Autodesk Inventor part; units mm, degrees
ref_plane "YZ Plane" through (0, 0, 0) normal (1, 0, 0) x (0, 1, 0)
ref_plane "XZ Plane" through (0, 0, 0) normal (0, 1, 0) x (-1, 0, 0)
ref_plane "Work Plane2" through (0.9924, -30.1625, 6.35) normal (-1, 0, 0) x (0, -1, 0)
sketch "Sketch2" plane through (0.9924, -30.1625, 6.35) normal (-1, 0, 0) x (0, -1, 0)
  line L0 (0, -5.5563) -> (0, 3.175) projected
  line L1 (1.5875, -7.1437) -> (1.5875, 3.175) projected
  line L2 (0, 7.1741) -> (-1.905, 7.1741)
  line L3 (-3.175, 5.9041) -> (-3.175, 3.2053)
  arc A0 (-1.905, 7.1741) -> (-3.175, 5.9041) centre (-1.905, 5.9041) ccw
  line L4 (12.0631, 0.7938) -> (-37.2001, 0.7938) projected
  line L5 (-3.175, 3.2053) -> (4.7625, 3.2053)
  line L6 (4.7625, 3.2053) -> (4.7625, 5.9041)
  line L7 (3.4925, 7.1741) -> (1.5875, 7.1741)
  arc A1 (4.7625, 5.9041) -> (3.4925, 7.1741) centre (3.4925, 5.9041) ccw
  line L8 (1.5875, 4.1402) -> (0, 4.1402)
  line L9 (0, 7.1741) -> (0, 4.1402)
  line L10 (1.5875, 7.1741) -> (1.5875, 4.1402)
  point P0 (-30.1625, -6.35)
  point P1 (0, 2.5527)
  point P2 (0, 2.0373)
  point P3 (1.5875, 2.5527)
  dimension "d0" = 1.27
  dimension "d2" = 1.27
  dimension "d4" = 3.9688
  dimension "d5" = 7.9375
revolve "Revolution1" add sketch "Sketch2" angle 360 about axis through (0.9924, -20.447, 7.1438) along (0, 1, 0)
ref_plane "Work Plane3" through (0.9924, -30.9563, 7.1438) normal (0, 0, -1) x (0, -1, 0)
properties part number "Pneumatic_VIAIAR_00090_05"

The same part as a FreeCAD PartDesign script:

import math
import FreeCAD as App
import Part
import Sketcher

V = App.Vector
Q = App.Units.Quantity

doc = App.newDocument("Part")
body = doc.addObject("PartDesign::Body", "Body")

# Sketch on YZ plane
sketch1 = doc.addObject("Sketcher::SketchObject", "Sketch")
body.addObject(sketch1)
sketch1.AttachmentSupport = (doc.YZ_Plane, [""])
sketch1.MapMode = "FlatFace"
sketch1.AttachmentOffset = App.Placement(V(0, 0, 0.9924), App.Rotation())
sketch1.addGeometry([
    Part.LineSegment(V(-30.2, 10.5, 0), V(-30.2, 13.5, 0)),  # 0
    Part.LineSegment(V(-30.2, 13.5, 0), V(-28.3, 13.5, 0)),  # 1
    Part.ArcOfCircle(Part.Circle(V(-28.3, 12.3, 0), V(0, 0, 1), 1.3), math.radians(0), math.radians(90)),  # 2
    Part.LineSegment(V(-27, 12.3, 0), V(-27, 9.6, 0)),  # 3
    Part.LineSegment(V(-27, 9.6, 0), V(-34.9, 9.6, 0)),  # 4
    Part.LineSegment(V(-34.9, 9.6, 0), V(-34.9, 12.3, 0)),  # 5
    Part.ArcOfCircle(Part.Circle(V(-33.7, 12.3, 0), V(0, 0, 1), 1.3), math.radians(90), math.radians(180)),  # 6
    Part.LineSegment(V(-33.7, 13.5, 0), V(-31.8, 13.5, 0)),  # 7
    Part.LineSegment(V(-31.8, 13.5, 0), V(-31.8, 10.5, 0)),  # 8
    Part.LineSegment(V(-31.8, 10.5, 0), V(-30.2, 10.5, 0)),  # 9
], False)
sketch1.addGeometry(Part.LineSegment(V(-34.9, 7.1, 0), V(-27, 7.1, 0)), True)  # axis
sketch1.addConstraint([
    Sketcher.Constraint("Coincident", 0, 2, 1, 1),
    Sketcher.Constraint("Tangent", 1, 2, 2, 2),
    Sketcher.Constraint("Tangent", 2, 1, 3, 1),
    Sketcher.Constraint("Coincident", 3, 2, 4, 1),
    Sketcher.Constraint("Coincident", 4, 2, 5, 1),
    Sketcher.Constraint("Tangent", 5, 2, 6, 2),
    Sketcher.Constraint("Tangent", 6, 1, 7, 1),
    Sketcher.Constraint("Coincident", 7, 2, 8, 1),
    Sketcher.Constraint("Coincident", 8, 2, 9, 1),
    Sketcher.Constraint("Coincident", 9, 2, 0, 1),
    Sketcher.Constraint("Vertical", 0),
    Sketcher.Constraint("Horizontal", 1),
    Sketcher.Constraint("Vertical", 3),
    Sketcher.Constraint("Horizontal", 4),
    Sketcher.Constraint("Vertical", 5),
    Sketcher.Constraint("Horizontal", 7),
    Sketcher.Constraint("Vertical", 8),
    Sketcher.Constraint("Horizontal", 9),
    Sketcher.Constraint("Horizontal", 10),
    Sketcher.Constraint("Equal", 2, 6),
    Sketcher.Constraint("Horizontal", 2, 3, 6, 3),
    Sketcher.Constraint("Vertical", 5, 2, 10, 1),
    Sketcher.Constraint("Vertical", 3, 2, 10, 2),
    Sketcher.Constraint("Equal", 1, 7),
    Sketcher.Constraint("Radius", 2, Q("0.05 in")),
    Sketcher.Constraint("DistanceX", 4, 2, 4, 1, Q("0.3125 in")),
    Sketcher.Constraint("DistanceY", 3, 2, 1, 2, Q("0.156252 in")),
    Sketcher.Constraint("DistanceX", 1, 1, 1, 2, Q("0.075 in")),
    Sketcher.Constraint("DistanceX", 7, 2, -1, 1, Q("1.25 in")),
    Sketcher.Constraint("DistanceY", -1, 1, 8, 2, Q("0.413 in")),
    Sketcher.Constraint("DistanceY", -1, 1, 10, 1, Q("0.281252 in")),
    Sketcher.Constraint("DistanceY", 0, 1, 0, 2, 3.034),
])
revolution = doc.addObject("PartDesign::Revolution", "Revolution")
body.addObject(revolution)
revolution.Profile = sketch1
revolution.ReferenceAxis = (sketch1, ["Axis0"])
revolution.Angle = 360

doc.recompute()
